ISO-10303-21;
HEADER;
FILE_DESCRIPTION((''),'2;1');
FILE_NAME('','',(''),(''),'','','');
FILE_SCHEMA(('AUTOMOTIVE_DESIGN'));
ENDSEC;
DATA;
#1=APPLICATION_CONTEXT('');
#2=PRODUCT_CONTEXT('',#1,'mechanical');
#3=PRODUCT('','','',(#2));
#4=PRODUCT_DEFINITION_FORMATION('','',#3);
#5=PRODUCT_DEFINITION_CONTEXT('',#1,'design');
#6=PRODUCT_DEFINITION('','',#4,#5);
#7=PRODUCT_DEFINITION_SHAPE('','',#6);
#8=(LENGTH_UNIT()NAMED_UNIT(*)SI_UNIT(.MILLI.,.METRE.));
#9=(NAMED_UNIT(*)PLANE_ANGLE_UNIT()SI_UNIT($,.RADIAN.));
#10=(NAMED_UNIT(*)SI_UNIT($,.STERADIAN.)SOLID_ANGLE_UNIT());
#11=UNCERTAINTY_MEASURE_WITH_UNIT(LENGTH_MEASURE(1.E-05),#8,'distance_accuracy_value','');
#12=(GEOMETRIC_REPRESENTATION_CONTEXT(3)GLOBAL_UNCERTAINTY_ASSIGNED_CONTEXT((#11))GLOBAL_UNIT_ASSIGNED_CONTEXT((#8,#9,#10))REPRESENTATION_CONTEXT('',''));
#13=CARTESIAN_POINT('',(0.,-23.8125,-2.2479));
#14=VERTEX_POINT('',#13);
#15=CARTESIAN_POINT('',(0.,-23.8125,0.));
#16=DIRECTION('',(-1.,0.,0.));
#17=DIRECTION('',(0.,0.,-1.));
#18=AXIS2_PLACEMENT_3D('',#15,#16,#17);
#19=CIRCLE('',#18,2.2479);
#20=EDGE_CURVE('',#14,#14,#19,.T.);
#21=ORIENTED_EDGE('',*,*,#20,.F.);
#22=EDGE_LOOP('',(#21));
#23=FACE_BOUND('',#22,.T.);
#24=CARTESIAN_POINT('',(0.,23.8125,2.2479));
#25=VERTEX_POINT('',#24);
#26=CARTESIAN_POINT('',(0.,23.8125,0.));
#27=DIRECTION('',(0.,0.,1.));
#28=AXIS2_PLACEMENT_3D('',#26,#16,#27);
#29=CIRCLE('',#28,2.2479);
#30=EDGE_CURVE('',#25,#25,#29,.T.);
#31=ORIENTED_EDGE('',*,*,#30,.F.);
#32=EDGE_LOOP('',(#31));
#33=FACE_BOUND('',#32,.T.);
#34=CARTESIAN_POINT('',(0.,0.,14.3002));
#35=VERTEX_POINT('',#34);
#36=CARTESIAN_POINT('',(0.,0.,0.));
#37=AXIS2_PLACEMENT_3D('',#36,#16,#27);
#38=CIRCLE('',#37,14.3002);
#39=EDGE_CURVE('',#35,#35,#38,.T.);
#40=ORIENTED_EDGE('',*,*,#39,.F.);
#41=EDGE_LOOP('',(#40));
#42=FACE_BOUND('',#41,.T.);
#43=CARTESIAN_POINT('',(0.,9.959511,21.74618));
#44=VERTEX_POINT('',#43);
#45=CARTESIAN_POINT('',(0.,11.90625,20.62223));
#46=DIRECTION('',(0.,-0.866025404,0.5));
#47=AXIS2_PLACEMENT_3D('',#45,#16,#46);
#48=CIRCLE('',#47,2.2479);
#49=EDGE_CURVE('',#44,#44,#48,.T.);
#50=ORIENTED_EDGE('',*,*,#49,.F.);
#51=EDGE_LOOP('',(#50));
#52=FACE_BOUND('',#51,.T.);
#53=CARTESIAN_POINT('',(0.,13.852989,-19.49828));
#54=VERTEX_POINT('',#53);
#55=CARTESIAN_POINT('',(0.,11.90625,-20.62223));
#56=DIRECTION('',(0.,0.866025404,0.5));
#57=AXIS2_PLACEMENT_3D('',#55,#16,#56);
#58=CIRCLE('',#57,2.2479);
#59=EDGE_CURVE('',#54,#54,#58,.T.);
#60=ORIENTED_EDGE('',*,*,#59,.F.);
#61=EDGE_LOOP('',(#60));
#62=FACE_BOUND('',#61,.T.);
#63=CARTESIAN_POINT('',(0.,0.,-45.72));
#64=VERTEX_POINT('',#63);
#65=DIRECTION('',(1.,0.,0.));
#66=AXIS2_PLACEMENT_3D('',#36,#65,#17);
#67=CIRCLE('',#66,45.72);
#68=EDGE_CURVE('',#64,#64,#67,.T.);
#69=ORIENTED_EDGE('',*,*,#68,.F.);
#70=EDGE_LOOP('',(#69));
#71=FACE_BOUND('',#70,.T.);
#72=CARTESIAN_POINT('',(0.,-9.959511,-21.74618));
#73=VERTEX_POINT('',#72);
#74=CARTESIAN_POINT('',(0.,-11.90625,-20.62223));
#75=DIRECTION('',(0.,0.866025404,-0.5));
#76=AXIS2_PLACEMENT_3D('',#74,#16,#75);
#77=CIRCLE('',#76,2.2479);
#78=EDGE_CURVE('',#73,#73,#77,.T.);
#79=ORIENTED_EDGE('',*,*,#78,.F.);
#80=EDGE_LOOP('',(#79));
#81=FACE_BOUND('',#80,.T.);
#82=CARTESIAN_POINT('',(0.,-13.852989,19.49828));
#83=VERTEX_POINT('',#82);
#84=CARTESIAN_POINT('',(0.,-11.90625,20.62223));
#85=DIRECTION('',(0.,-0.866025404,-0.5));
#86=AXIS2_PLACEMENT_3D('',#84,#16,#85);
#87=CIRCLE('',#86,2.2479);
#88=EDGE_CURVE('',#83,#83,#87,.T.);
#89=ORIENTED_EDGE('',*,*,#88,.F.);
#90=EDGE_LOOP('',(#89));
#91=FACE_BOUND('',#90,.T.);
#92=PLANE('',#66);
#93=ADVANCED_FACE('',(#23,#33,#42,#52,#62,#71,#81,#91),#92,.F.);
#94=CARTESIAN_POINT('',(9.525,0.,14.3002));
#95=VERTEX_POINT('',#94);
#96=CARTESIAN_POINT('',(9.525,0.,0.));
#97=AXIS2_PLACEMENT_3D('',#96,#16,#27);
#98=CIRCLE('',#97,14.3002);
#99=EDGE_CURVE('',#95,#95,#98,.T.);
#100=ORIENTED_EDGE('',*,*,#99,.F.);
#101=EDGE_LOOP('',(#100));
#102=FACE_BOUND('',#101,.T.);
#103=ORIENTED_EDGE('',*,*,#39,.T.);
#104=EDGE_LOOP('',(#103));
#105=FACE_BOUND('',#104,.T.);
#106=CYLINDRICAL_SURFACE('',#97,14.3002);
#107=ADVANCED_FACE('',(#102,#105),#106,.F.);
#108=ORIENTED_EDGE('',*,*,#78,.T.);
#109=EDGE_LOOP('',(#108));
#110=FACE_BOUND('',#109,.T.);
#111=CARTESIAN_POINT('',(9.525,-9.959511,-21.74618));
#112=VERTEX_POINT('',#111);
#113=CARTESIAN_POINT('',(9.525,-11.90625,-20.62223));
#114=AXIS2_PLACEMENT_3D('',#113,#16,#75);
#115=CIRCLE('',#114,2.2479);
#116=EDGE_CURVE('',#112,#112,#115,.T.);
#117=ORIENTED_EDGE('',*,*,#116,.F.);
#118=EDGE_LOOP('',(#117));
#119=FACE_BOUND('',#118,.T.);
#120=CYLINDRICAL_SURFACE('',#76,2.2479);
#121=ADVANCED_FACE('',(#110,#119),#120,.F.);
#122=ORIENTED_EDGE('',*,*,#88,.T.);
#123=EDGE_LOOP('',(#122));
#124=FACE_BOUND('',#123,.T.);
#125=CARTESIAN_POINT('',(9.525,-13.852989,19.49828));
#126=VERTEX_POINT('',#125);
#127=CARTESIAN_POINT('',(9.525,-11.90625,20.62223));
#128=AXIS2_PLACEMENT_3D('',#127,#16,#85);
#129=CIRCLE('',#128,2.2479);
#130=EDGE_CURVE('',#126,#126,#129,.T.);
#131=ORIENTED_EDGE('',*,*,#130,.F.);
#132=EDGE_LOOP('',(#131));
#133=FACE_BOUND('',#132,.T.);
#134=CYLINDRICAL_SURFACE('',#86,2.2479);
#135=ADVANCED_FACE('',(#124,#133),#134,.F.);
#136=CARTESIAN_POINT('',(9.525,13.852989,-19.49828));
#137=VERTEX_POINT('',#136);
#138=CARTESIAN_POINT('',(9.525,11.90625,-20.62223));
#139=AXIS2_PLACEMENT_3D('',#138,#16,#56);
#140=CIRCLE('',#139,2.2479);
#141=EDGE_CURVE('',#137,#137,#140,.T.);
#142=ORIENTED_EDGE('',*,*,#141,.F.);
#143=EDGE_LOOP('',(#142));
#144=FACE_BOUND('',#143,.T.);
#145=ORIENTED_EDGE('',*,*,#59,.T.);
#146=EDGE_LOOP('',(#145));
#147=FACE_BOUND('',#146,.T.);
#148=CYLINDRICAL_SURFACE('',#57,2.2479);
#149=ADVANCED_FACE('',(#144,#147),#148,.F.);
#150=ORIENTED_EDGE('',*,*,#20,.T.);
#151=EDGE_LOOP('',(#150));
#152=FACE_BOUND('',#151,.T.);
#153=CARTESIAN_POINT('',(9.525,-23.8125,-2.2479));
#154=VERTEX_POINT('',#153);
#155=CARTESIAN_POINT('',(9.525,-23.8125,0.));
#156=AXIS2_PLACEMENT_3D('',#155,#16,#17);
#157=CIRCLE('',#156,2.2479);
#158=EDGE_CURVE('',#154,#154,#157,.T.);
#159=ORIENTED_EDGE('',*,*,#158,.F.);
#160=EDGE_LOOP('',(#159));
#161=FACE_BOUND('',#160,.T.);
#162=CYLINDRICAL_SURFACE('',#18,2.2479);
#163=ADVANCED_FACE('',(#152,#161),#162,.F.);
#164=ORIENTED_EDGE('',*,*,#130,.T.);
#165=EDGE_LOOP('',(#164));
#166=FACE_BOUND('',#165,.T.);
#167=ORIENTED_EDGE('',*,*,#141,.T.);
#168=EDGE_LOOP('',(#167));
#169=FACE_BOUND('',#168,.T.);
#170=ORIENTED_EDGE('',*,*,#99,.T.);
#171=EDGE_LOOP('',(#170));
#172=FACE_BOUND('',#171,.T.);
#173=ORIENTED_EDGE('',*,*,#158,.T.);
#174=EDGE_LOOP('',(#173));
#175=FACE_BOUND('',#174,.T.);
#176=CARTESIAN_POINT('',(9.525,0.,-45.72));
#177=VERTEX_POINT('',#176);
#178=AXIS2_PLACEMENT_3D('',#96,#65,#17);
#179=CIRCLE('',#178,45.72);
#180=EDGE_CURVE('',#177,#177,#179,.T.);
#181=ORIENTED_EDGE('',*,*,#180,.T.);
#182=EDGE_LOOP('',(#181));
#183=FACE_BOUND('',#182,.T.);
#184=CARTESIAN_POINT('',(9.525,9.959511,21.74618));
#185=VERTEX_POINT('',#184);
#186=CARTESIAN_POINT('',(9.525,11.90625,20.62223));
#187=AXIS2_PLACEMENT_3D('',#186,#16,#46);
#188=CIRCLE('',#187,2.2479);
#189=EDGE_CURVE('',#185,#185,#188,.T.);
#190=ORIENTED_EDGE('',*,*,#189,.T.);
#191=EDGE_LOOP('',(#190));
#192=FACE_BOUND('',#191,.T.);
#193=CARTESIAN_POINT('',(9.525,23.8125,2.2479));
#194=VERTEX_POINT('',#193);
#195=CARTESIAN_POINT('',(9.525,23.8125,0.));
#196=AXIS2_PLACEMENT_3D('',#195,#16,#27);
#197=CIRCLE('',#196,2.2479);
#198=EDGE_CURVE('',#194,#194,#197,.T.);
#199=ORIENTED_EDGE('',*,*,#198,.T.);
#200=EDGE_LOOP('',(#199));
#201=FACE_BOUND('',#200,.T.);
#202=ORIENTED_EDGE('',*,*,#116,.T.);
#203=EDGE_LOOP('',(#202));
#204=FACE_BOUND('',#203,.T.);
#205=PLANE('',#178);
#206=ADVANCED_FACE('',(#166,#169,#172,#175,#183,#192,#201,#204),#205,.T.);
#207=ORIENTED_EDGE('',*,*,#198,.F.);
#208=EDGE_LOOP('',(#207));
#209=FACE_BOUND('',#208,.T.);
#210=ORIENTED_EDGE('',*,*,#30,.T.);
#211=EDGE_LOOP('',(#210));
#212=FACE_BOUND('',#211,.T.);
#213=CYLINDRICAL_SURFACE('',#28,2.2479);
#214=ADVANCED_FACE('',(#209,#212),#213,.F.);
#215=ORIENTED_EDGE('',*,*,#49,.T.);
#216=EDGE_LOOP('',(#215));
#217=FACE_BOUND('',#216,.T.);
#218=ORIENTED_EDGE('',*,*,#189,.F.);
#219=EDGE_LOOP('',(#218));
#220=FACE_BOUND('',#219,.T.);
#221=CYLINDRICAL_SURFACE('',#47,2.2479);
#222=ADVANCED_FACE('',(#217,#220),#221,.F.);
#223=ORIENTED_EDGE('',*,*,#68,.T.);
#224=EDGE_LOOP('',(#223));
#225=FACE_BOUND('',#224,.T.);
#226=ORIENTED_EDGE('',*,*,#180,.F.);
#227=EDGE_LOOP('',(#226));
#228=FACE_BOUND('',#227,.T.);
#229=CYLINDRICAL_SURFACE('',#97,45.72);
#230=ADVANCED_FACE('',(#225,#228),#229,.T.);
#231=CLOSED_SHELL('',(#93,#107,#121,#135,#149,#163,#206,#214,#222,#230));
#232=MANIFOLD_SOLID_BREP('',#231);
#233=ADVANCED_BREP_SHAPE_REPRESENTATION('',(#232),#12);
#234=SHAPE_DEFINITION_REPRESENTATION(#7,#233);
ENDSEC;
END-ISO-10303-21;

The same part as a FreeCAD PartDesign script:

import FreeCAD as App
import Part
import Sketcher

V = App.Vector
Q = App.Units.Quantity

doc = App.newDocument("Part")
body = doc.addObject("PartDesign::Body", "Body")

# Sketch on YZ plane
sketch1 = body.newObject("Sketcher::SketchObject", "Sketch")
sketch1.AttachmentSupport = (doc.getObject("YZ_Plane"), [""])
sketch1.MapMode = "FlatFace"
sketch1.addGeometry(Part.Circle(V(0, 0, 0), V(0, 0, 1), 46), False)
sketch1.addConstraint([
    Sketcher.Constraint("Coincident", 0, 3, -1, 1),
    Sketcher.Constraint("Diameter", 0, Q("3.6 in")),
])
pad1 = body.newObject("PartDesign::Pad", "Pad")
pad1.Profile = sketch1
pad1.Length = Q("0.375 in")

# Sketch on YZ plane
sketch2 = body.newObject("Sketcher::SketchObject", "Sketch001")
sketch2.AttachmentSupport = (doc.getObject("YZ_Plane"), [""])
sketch2.MapMode = "FlatFace"
sketch2.addGeometry(Part.Circle(V(0, 0, 0), V(0, 0, 1), 14), False)
sketch2.addConstraint([
    Sketcher.Constraint("Coincident", 0, 3, -1, 1),
    Sketcher.Constraint("Diameter", 0, Q("1.126 in")),
])
pocket1 = body.newObject("PartDesign::Pocket", "Pocket")
pocket1.Profile = sketch2
pocket1.Type = "ThroughAll"
pocket1.Reversed = True

# Sketch on YZ plane
sketch3 = body.newObject("Sketcher::SketchObject", "Sketch002")
sketch3.AttachmentSupport = (doc.getObject("YZ_Plane"), [""])
sketch3.MapMode = "FlatFace"
sketch3.addGeometry(Part.Circle(V(23.8, 0, 0), V(0, 0, 1), 2.2), False)
sketch3.addConstraint([
    Sketcher.Constraint("PointOnObject", 0, 3, -1),
    Sketcher.Constraint("Diameter", 0, Q("0.177 in")),
    Sketcher.Constraint("DistanceX", -1, 1, 0, 3, Q("0.9375 in")),
])
doc.recompute()
hole = body.newObject("PartDesign::Hole", "Hole")
hole.Profile = sketch3
hole.ThreadType = "None"
hole.Diameter = Q("0.177 in")
hole.DepthType = "ThroughAll"
hole.Reversed = True
doc.recompute()

polarpattern = body.newObject("PartDesign::PolarPattern", "PolarPattern")
polarpattern.Originals = [hole]
polarpattern.Axis = (doc.getObject("X_Axis"), [""])
polarpattern.Angle = 360
polarpattern.Occurrences = 6
body.Tip = polarpattern

doc.recompute()
